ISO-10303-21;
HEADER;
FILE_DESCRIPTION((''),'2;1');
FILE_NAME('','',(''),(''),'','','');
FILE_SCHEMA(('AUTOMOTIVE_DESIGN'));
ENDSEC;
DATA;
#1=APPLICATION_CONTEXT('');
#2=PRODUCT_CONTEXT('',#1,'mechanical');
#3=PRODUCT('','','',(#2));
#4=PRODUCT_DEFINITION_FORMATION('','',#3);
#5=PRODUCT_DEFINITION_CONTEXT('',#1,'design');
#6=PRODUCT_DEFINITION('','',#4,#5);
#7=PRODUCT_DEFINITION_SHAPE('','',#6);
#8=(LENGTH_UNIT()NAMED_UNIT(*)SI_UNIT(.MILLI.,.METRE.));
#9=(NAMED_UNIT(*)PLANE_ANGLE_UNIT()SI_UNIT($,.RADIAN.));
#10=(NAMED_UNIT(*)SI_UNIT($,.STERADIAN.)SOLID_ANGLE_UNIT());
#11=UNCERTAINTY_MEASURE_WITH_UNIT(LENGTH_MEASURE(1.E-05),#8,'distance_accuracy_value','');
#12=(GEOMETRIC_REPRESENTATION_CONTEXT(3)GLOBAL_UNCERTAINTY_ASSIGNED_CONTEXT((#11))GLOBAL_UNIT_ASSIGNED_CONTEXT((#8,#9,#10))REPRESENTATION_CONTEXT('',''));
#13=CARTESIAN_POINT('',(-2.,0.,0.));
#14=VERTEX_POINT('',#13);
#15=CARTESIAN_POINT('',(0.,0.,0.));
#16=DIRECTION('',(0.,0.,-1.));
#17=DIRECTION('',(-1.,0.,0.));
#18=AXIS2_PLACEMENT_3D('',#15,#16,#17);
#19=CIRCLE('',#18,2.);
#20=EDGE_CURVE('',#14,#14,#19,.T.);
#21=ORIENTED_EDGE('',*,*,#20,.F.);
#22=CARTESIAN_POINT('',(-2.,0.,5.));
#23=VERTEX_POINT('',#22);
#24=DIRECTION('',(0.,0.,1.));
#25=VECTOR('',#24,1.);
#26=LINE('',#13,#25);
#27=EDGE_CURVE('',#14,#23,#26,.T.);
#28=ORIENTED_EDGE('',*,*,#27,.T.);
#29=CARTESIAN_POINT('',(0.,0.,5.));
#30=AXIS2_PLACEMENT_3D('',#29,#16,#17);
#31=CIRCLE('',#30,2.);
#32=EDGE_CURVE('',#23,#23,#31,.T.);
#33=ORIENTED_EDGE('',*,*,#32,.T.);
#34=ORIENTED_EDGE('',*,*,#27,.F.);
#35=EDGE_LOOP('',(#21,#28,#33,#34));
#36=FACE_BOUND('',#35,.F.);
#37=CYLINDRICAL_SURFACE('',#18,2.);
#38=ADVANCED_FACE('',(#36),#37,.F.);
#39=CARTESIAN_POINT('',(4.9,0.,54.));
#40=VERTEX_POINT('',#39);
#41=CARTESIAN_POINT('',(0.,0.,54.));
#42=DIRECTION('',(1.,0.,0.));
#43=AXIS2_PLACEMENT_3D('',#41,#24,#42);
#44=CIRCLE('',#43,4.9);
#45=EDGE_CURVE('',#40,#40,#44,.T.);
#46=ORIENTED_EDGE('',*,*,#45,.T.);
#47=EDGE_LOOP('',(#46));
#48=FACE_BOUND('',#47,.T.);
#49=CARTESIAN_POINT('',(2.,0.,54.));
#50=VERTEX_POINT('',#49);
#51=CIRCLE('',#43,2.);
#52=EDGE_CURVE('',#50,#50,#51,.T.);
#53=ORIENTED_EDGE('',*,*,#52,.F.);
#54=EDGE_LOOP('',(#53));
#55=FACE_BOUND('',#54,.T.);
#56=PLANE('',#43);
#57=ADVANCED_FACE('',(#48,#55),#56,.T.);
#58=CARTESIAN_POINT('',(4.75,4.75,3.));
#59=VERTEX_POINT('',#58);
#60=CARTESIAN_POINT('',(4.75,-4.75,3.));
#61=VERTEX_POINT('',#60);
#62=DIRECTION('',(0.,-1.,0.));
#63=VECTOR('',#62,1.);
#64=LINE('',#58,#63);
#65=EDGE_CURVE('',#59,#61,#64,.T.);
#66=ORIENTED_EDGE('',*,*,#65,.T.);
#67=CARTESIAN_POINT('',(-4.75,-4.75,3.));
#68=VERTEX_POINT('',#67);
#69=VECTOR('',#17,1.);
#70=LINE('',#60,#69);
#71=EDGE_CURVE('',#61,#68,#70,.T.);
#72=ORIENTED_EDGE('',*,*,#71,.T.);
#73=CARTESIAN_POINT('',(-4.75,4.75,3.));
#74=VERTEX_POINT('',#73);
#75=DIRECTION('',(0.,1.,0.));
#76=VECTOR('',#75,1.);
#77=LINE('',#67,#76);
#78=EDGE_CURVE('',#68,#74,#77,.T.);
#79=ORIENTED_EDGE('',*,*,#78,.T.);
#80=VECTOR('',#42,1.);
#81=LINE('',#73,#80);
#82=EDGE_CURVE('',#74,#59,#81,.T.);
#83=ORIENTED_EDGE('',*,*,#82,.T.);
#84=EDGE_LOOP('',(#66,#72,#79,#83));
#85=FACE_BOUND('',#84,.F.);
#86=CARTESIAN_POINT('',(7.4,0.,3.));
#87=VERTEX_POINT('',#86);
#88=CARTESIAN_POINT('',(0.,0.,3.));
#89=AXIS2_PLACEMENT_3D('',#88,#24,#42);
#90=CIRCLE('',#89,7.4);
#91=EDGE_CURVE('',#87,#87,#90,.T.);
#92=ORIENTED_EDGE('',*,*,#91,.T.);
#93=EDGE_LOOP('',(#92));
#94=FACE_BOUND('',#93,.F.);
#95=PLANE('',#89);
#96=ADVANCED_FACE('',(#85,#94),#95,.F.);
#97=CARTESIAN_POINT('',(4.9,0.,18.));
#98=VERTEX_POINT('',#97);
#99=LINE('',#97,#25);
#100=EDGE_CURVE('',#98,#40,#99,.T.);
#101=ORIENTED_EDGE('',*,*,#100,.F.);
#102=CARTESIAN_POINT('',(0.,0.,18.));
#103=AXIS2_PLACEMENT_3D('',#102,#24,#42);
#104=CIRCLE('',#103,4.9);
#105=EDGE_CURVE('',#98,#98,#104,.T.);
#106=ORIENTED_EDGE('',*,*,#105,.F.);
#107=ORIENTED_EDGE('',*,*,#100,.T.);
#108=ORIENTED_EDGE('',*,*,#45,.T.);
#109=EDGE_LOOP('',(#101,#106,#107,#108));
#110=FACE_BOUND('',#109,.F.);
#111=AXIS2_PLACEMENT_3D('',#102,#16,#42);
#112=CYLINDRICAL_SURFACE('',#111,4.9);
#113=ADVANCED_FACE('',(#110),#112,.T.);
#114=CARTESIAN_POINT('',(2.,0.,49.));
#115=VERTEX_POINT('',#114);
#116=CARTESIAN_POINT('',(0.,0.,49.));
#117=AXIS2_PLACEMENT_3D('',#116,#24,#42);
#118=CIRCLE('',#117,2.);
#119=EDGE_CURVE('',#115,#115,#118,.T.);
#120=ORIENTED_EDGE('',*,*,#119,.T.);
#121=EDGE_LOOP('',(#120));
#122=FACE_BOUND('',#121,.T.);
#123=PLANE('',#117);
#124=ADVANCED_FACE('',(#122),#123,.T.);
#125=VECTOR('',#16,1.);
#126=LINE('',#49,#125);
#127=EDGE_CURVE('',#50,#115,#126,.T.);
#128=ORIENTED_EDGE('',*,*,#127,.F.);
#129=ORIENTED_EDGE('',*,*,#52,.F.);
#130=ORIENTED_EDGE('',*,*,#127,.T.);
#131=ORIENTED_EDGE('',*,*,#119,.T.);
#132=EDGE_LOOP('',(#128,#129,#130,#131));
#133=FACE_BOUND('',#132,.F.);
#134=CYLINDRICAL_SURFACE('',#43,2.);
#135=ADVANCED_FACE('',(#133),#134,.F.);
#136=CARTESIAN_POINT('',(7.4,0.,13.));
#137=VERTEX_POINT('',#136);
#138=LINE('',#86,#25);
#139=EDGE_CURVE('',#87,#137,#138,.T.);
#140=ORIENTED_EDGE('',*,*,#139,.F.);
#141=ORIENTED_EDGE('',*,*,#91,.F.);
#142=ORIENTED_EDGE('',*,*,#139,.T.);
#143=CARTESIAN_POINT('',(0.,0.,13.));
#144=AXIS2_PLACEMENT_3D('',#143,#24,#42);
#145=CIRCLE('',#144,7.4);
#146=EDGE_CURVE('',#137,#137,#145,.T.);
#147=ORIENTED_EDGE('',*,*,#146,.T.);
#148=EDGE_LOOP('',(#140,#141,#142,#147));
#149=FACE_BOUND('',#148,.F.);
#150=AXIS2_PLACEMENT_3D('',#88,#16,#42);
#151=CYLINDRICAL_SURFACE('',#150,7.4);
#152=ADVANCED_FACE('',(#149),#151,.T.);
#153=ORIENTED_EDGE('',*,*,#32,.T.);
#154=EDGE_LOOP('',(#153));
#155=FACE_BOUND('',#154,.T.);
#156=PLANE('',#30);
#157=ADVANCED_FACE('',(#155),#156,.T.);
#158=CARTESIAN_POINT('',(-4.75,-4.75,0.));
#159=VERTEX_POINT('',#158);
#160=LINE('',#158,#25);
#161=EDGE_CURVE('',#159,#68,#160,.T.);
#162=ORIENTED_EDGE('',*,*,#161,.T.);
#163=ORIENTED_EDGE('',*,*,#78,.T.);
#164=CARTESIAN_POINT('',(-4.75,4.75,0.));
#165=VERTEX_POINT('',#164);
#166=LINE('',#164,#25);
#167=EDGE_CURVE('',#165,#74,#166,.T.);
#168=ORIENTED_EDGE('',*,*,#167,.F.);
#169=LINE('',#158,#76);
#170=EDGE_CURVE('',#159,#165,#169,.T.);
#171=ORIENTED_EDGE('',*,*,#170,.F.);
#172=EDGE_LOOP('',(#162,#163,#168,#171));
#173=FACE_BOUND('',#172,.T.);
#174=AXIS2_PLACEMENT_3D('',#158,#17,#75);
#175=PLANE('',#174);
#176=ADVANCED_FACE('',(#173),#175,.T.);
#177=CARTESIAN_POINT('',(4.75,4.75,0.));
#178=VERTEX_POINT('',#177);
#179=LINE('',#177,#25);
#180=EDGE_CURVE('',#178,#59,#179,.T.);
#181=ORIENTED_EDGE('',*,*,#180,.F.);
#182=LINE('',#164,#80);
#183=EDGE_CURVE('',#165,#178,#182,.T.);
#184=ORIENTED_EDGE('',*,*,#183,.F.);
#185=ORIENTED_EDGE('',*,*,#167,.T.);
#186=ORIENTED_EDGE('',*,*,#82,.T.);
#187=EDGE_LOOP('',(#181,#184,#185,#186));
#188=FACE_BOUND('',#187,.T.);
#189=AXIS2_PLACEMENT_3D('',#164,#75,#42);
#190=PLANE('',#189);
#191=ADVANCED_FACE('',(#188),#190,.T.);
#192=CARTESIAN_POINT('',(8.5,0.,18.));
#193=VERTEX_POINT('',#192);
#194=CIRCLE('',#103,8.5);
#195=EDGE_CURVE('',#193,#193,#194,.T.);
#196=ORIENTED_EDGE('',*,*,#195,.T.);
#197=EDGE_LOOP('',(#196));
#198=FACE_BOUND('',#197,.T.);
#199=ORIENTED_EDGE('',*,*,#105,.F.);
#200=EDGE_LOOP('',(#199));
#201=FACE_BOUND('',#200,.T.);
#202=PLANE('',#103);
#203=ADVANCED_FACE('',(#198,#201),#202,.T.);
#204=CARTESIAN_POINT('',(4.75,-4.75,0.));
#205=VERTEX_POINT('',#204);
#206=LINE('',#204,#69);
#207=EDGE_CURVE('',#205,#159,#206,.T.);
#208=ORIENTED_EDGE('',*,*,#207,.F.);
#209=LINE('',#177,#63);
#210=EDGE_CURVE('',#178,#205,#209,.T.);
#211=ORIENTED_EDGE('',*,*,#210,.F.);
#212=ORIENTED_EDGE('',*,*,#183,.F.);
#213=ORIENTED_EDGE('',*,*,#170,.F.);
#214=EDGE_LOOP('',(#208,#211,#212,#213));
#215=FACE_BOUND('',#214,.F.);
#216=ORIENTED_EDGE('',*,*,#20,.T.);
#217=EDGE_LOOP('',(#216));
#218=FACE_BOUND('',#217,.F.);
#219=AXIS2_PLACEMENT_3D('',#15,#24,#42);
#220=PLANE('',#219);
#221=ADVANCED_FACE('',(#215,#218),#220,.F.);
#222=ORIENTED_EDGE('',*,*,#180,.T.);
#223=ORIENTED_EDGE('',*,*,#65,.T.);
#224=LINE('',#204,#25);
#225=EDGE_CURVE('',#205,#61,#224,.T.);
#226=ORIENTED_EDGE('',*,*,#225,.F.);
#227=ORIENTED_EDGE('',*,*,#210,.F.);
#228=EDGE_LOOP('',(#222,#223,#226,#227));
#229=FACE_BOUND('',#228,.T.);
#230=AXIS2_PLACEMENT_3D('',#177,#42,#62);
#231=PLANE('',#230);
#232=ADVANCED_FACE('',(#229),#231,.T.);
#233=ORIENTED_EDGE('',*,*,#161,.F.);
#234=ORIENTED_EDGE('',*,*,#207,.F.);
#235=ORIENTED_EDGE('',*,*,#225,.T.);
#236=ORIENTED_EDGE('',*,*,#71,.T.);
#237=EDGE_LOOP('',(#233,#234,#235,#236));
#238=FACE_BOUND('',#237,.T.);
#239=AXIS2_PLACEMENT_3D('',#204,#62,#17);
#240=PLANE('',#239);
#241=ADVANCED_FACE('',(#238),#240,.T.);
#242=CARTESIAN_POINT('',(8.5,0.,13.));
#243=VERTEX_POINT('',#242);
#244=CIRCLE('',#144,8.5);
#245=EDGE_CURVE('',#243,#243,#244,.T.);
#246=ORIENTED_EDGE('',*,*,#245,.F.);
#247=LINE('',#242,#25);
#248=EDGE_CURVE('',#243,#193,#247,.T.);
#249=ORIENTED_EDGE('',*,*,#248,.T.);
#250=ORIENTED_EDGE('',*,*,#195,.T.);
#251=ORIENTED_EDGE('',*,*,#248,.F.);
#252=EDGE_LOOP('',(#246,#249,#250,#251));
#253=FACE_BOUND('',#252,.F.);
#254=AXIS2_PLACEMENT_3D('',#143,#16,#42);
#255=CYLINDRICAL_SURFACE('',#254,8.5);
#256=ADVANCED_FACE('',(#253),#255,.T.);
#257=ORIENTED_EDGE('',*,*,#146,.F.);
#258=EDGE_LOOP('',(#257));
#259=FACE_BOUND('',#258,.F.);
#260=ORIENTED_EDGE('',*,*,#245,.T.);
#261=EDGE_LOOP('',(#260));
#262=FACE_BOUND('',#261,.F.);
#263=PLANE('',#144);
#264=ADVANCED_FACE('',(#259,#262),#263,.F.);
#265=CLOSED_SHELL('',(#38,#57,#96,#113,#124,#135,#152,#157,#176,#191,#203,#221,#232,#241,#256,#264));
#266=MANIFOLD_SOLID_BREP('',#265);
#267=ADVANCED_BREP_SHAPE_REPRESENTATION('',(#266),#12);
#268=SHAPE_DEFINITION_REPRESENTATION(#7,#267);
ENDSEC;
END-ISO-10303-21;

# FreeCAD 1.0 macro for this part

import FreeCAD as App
import Part
import Sketcher

doc = App.newDocument("Part")
body = doc.addObject("PartDesign::Body", "Body")

# Sketch on XY plane
sketch1 = body.newObject("Sketcher::SketchObject", "Sketch")
sketch1.AttachmentSupport = (doc.getObject("XY_Plane"), [""])
sketch1.MapMode = "FlatFace"
sketch1.addGeometry([
    Part.LineSegment(App.Vector(5, 5, 0), App.Vector(-5, 5, 0)),
    Part.LineSegment(App.Vector(-5, 5, 0), App.Vector(-5, -5, 0)),
    Part.LineSegment(App.Vector(-5, -5, 0), App.Vector(5, -5, 0)),
    Part.LineSegment(App.Vector(5, -5, 0), App.Vector(5, 5, 0)),
], False)
sketch1.addConstraint([
    Sketcher.Constraint("Coincident", 0, 2, 1, 1),
    Sketcher.Constraint("Coincident", 1, 2, 2, 1),
    Sketcher.Constraint("Coincident", 2, 2, 3, 1),
    Sketcher.Constraint("Coincident", 3, 2, 0, 1),
    Sketcher.Constraint("Horizontal", 0),
    Sketcher.Constraint("Vertical", 1),
    Sketcher.Constraint("Horizontal", 2),
    Sketcher.Constraint("Vertical", 3),
    Sketcher.Constraint("Symmetric", 0, 2, 2, 2, -1, 1),
    Sketcher.Constraint("Equal", 2, 1),
    Sketcher.Constraint("DistanceX", 0, 2, 0, 1, 9.5),
])
pad1 = body.newObject("PartDesign::Pad", "Pad")
pad1.Profile = sketch1
pad1.Length = 3

# Sketch on XY plane
sketch2 = body.newObject("Sketcher::SketchObject", "Sketch001")
sketch2.AttachmentSupport = (doc.getObject("XY_Plane"), [""])
sketch2.MapMode = "FlatFace"
sketch2.AttachmentOffset = App.Placement(App.Vector(0, 0, 3), App.Rotation())
sketch2.addGeometry(Part.Circle(App.Vector(0, 0, 0), App.Vector(0, 0, 1), 7), False)
sketch2.addConstraint([
    Sketcher.Constraint("Coincident", 0, 3, -1, 1),
    Sketcher.Constraint("Diameter", 0, 14.8),
])
pad2 = body.newObject("PartDesign::Pad", "Pad001")
pad2.Profile = sketch2
pad2.Length = 10

# Sketch on XY plane
sketch3 = body.newObject("Sketcher::SketchObject", "Sketch002")
sketch3.AttachmentSupport = (doc.getObject("XY_Plane"), [""])
sketch3.MapMode = "FlatFace"
sketch3.addGeometry(Part.Circle(App.Vector(0, 0, 0), App.Vector(0, 0, 1), 2), False)
sketch3.addConstraint([
    Sketcher.Constraint("Coincident", 0, 3, -1, 1),
    Sketcher.Constraint("Diameter", 0, 4.0),
])
pocket1 = body.newObject("PartDesign::Pocket", "Pocket")
pocket1.Profile = sketch3
pocket1.Length = 5
pocket1.Reversed = True

# Sketch on XY plane
sketch4 = body.newObject("Sketcher::SketchObject", "Sketch003")
sketch4.AttachmentSupport = (doc.getObject("XY_Plane"), [""])
sketch4.MapMode = "FlatFace"
sketch4.AttachmentOffset = App.Placement(App.Vector(0, 0, 13), App.Rotation())
sketch4.addGeometry(Part.Circle(App.Vector(0, 0, 0), App.Vector(0, 0, 1), 8), False)
sketch4.addConstraint([
    Sketcher.Constraint("Coincident", 0, 3, -1, 1),
    Sketcher.Constraint("Diameter", 0, 17.0),
])
pad3 = body.newObject("PartDesign::Pad", "Pad002")
pad3.Profile = sketch4
pad3.Length = 5

# Sketch on XY plane
sketch5 = body.newObject("Sketcher::SketchObject", "Sketch004")
sketch5.AttachmentSupport = (doc.getObject("XY_Plane"), [""])
sketch5.MapMode = "FlatFace"
sketch5.AttachmentOffset = App.Placement(App.Vector(0, 0, 18), App.Rotation())
sketch5.addGeometry(Part.Circle(App.Vector(0, 0, 0), App.Vector(0, 0, 1), 4.9), False)
sketch5.addConstraint([
    Sketcher.Constraint("Coincident", 0, 3, -1, 1),
    Sketcher.Constraint("Diameter", 0, 9.8),
])
pad4 = body.newObject("PartDesign::Pad", "Pad003")
pad4.Profile = sketch5
pad4.Length = 36

# Sketch on XY plane
sketch6 = body.newObject("Sketcher::SketchObject", "Sketch005")
sketch6.AttachmentSupport = (doc.getObject("XY_Plane"), [""])
sketch6.MapMode = "FlatFace"
sketch6.AttachmentOffset = App.Placement(App.Vector(0, 0, 54), App.Rotation())
sketch6.addGeometry(Part.Circle(App.Vector(0, 0, 0), App.Vector(0, 0, 1), 2), False)
sketch6.addConstraint([
    Sketcher.Constraint("Coincident", 0, 3, -1, 1),
    Sketcher.Constraint("Diameter", 0, 4.0),
])
pocket2 = body.newObject("PartDesign::Pocket", "Pocket001")
pocket2.Profile = sketch6
pocket2.Length = 5

doc.recompute()
